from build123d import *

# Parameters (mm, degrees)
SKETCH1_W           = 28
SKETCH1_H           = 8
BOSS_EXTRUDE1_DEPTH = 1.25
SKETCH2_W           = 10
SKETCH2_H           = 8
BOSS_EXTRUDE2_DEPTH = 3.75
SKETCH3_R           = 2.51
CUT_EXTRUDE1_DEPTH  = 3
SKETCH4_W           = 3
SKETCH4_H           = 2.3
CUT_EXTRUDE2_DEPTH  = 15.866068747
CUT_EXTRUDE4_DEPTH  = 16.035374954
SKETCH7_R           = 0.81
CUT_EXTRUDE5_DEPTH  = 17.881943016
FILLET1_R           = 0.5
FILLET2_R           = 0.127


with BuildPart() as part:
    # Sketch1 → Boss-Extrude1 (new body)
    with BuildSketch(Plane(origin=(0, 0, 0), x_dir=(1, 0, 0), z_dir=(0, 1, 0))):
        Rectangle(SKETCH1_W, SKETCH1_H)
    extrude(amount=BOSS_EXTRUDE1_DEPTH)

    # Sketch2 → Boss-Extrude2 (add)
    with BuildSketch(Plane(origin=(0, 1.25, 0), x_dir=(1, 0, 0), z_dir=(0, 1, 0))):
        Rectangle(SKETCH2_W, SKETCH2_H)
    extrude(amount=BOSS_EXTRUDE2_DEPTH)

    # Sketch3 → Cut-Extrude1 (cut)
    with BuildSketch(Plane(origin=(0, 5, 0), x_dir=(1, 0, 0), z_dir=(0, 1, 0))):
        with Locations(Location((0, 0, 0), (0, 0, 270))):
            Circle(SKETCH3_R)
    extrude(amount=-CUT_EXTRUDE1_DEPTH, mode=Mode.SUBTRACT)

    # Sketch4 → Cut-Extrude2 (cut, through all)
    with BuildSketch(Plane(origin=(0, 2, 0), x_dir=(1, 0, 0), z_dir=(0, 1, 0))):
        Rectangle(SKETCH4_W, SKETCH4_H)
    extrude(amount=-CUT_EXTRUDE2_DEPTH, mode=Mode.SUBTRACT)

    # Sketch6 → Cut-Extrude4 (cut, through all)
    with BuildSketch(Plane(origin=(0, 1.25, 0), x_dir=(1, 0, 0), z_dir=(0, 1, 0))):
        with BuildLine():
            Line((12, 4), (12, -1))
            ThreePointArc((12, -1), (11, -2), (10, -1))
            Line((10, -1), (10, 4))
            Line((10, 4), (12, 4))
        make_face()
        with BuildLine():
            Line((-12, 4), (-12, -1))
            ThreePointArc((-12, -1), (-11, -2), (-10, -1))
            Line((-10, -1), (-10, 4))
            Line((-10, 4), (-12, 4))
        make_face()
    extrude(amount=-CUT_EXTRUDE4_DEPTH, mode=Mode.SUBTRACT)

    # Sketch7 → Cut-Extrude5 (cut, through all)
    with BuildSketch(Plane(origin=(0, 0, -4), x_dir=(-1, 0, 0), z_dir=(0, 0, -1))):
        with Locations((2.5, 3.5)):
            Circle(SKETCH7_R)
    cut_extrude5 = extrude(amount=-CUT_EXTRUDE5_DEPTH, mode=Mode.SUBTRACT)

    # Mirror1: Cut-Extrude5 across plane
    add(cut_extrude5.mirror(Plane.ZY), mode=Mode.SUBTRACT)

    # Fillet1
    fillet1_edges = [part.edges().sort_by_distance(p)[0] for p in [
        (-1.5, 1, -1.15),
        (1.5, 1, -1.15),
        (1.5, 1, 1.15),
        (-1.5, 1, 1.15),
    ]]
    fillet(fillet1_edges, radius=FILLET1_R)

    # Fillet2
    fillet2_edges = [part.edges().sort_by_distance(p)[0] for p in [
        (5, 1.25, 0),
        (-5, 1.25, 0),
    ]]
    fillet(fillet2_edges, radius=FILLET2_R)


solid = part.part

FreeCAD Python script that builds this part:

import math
import FreeCAD as App
import Part
import Sketcher
Q = App.Units.Quantity


def edges_at(feature, points):
    """Names of the edges that pass closest to the given points."""
    edges = feature.Shape.Edges
    near = lambda p: min(range(len(edges)), key=lambda i: edges[i].distToShape(Part.Vertex(*p))[0])
    return sorted({f"Edge{near(p) + 1}" for p in points})

doc = App.newDocument("Part")
params = doc.addObject("Spreadsheet::Sheet", "Params")
for row, (alias, value) in enumerate([
    ("sketch1_width", "28 mm"),
    ("sketch1_height", "8 mm"),
    ("pad1_length", "1.25 mm"),
    ("sketch2_width", "10 mm"),
    ("sketch2_height", "8 mm"),
    ("pad2_length", "3.75 mm"),
    ("sketch3_diameter", "5.02 mm"),
    ("pocket1_length", "3 mm"),
    ("sketch4_width", "3 mm"),
    ("sketch4_height", "2.3 mm"),
    ("sketch5_radius", "1 mm"),
    ("sketch5_height", "5 mm"),
    ("sketch6_diameter", "1.62 mm"),
    ("fillet_radius", "0.5 mm"),
    ("fillet2_radius", "0.127 mm"),
], start=1):
    params.set(f"A{row}", alias)
    params.set(f"B{row}", "=" + value)
    params.setAlias(f"B{row}", alias)

body = doc.addObject("PartDesign::Body", "Body")

# Sketch on XZ plane
sketch1 = body.newObject("Sketcher::SketchObject", "Sketch")
sketch1.AttachmentSupport = (doc.getObject("XZ_Plane"), [""])
sketch1.MapMode = "FlatFace"
sketch1.addGeometry([
    Part.LineSegment(App.Vector(-14, -4, 0), App.Vector(-14, 4, 0)),
    Part.LineSegment(App.Vector(-14, 4, 0), App.Vector(14, 4, 0)),
    Part.LineSegment(App.Vector(14, 4, 0), App.Vector(14, -4, 0)),
    Part.LineSegment(App.Vector(14, -4, 0), App.Vector(-14, -4, 0)),
], False)
sketch1.addConstraint([
    Sketcher.Constraint("Coincident", 0, 2, 1, 1),
    Sketcher.Constraint("Coincident", 1, 2, 2, 1),
    Sketcher.Constraint("Coincident", 2, 2, 3, 1),
    Sketcher.Constraint("Coincident", 3, 2, 0, 1),
    Sketcher.Constraint("Vertical", 0),
    Sketcher.Constraint("Horizontal", 1),
    Sketcher.Constraint("Vertical", 2),
    Sketcher.Constraint("Horizontal", 3),
    Sketcher.Constraint("Symmetric", 0, 2, 2, 2, -1, 1),
    Sketcher.Constraint("DistanceX", 1, 1, 1, 2, Q("28 mm")),
    Sketcher.Constraint("DistanceY", 0, 1, 0, 2, Q("8 mm")),
])
sketch1.setExpression("Constraints[9]", "Params.sketch1_width")
sketch1.setExpression("Constraints[10]", "Params.sketch1_height")
pad1 = body.newObject("PartDesign::Pad", "Pad")
pad1.Profile = sketch1
pad1.setExpression("Length", "Params.pad1_length")
pad1.Reversed = True

# Sketch on XZ plane
sketch2 = body.newObject("Sketcher::SketchObject", "Sketch001")
sketch2.AttachmentSupport = (doc.getObject("XZ_Plane"), [""])
sketch2.MapMode = "FlatFace"
sketch2.AttachmentOffset = App.Placement(App.Vector(0, 0, -1.25), App.Rotation())
sketch2.addGeometry([
    Part.LineSegment(App.Vector(-5, -4, 0), App.Vector(-5, 4, 0)),
    Part.LineSegment(App.Vector(-5, 4, 0), App.Vector(5, 4, 0)),
    Part.LineSegment(App.Vector(5, 4, 0), App.Vector(5, -4, 0)),
    Part.LineSegment(App.Vector(5, -4, 0), App.Vector(-5, -4, 0)),
], False)
sketch2.addConstraint([
    Sketcher.Constraint("Coincident", 0, 2, 1, 1),
    Sketcher.Constraint("Coincident", 1, 2, 2, 1),
    Sketcher.Constraint("Coincident", 2, 2, 3, 1),
    Sketcher.Constraint("Coincident", 3, 2, 0, 1),
    Sketcher.Constraint("Vertical", 0),
    Sketcher.Constraint("Horizontal", 1),
    Sketcher.Constraint("Vertical", 2),
    Sketcher.Constraint("Horizontal", 3),
    Sketcher.Constraint("Symmetric", 0, 2, 2, 2, -1, 1),
    Sketcher.Constraint("DistanceX", 1, 1, 1, 2, Q("10 mm")),
    Sketcher.Constraint("DistanceY", 0, 1, 0, 2, Q("8 mm")),
])
sketch2.setExpression("Constraints[9]", "Params.sketch2_width")
sketch2.setExpression("Constraints[10]", "Params.sketch2_height")
pad2 = body.newObject("PartDesign::Pad", "Pad001")
pad2.Profile = sketch2
pad2.setExpression("Length", "Params.pad2_length")
pad2.Reversed = True

# Sketch on XZ plane
sketch3 = body.newObject("Sketcher::SketchObject", "Sketch002")
sketch3.AttachmentSupport = (doc.getObject("XZ_Plane"), [""])
sketch3.MapMode = "FlatFace"
sketch3.AttachmentOffset = App.Placement(App.Vector(0, 0, -5), App.Rotation())
sketch3.addGeometry(Part.Circle(App.Vector(0, 0, 0), App.Vector(0, 0, 1), 2.51), False)
sketch3.addConstraint([
    Sketcher.Constraint("Coincident", 0, 3, -1, 1),
    Sketcher.Constraint("Diameter", 0, Q("5.02 mm")),
])
sketch3.setExpression("Constraints[1]", "Params.sketch3_diameter")
pocket1 = body.newObject("PartDesign::Pocket", "Pocket")
pocket1.Profile = sketch3
pocket1.setExpression("Length", "Params.pocket1_length")
pocket1.Reversed = True

# Sketch on XZ plane
sketch4 = body.newObject("Sketcher::SketchObject", "Sketch003")
sketch4.AttachmentSupport = (doc.getObject("XZ_Plane"), [""])
sketch4.MapMode = "FlatFace"
sketch4.AttachmentOffset = App.Placement(App.Vector(0, 0, -2), App.Rotation())
sketch4.addGeometry([
    Part.LineSegment(App.Vector(-1.5, -1.15, 0), App.Vector(-1.5, 1.15, 0)),
    Part.LineSegment(App.Vector(-1.5, 1.15, 0), App.Vector(1.5, 1.15, 0)),
    Part.LineSegment(App.Vector(1.5, 1.15, 0), App.Vector(1.5, -1.15, 0)),
    Part.LineSegment(App.Vector(1.5, -1.15, 0), App.Vector(-1.5, -1.15, 0)),
], False)
sketch4.addConstraint([
    Sketcher.Constraint("Coincident", 0, 2, 1, 1),
    Sketcher.Constraint("Coincident", 1, 2, 2, 1),
    Sketcher.Constraint("Coincident", 2, 2, 3, 1),
    Sketcher.Constraint("Coincident", 3, 2, 0, 1),
    Sketcher.Constraint("Vertical", 0),
    Sketcher.Constraint("Horizontal", 1),
    Sketcher.Constraint("Vertical", 2),
    Sketcher.Constraint("Horizontal", 3),
    Sketcher.Constraint("Symmetric", 0, 2, 2, 2, -1, 1),
    Sketcher.Constraint("DistanceX", 1, 1, 1, 2, Q("3 mm")),
    Sketcher.Constraint("DistanceY", 0, 1, 0, 2, Q("2.3 mm")),
])
sketch4.setExpression("Constraints[9]", "Params.sketch4_width")
sketch4.setExpression("Constraints[10]", "Params.sketch4_height")
pocket2 = body.newObject("PartDesign::Pocket", "Pocket001")
pocket2.Profile = sketch4
pocket2.Type = "ThroughAll"
pocket2.Reversed = True

# Sketch on XZ plane
sketch5 = body.newObject("Sketcher::SketchObject", "Sketch004")
sketch5.AttachmentSupport = (doc.getObject("XZ_Plane"), [""])
sketch5.MapMode = "FlatFace"
sketch5.AttachmentOffset = App.Placement(App.Vector(0, 0, -1.25), App.Rotation())
sketch5.addGeometry([
    Part.LineSegment(App.Vector(12, 1, 0), App.Vector(12, -4, 0)),  # 0
    Part.LineSegment(App.Vector(12, -4, 0), App.Vector(10, -4, 0)),  # 1
    Part.LineSegment(App.Vector(10, -4, 0), App.Vector(10, 1, 0)),  # 2
    Part.ArcOfCircle(Part.Circle(App.Vector(11, 1, 0), App.Vector(0, 0, 1), 1), math.radians(0), math.radians(180)),  # 3
    Part.LineSegment(App.Vector(-12, -4, 0), App.Vector(-12, 1, 0)),  # 4
    Part.ArcOfCircle(Part.Circle(App.Vector(-11, 1, 0), App.Vector(0, 0, 1), 1), math.radians(0), math.radians(180)),  # 5
    Part.LineSegment(App.Vector(-10, 1, 0), App.Vector(-10, -4, 0)),  # 6
    Part.LineSegment(App.Vector(-10, -4, 0), App.Vector(-12, -4, 0)),  # 7
], False)
sketch5.addConstraint([
    Sketcher.Constraint("Coincident", 0, 2, 1, 1),
    Sketcher.Constraint("Coincident", 1, 2, 2, 1),
    Sketcher.Constraint("Tangent", 2, 2, 3, 2),
    Sketcher.Constraint("Tangent", 3, 1, 0, 1),
    Sketcher.Constraint("Tangent", 4, 2, 5, 2),
    Sketcher.Constraint("Tangent", 5, 1, 6, 1),
    Sketcher.Constraint("Coincident", 6, 2, 7, 1),
    Sketcher.Constraint("Coincident", 7, 2, 4, 1),
    Sketcher.Constraint("Vertical", 0),
    Sketcher.Constraint("Horizontal", 1),
    Sketcher.Constraint("Vertical", 2),
    Sketcher.Constraint("Vertical", 4),
    Sketcher.Constraint("Vertical", 6),
    Sketcher.Constraint("Horizontal", 7),
    Sketcher.Constraint("Equal", 3, 5),
    Sketcher.Constraint("Symmetric", 3, 3, 5, 3, -2),
    Sketcher.Constraint("Horizontal", 1, 2, 6, 2),
    Sketcher.Constraint("Radius", 3, Q("1 mm")),
    Sketcher.Constraint("DistanceY", 0, 2, 0, 1, Q("5 mm")),
    Sketcher.Constraint("DistanceX", -1, 1, 3, 3, Q("11 mm")),
    Sketcher.Constraint("DistanceY", -1, 1, 3, 3, Q("1 mm")),
])
sketch5.setExpression("Constraints[17]", "Params.sketch5_radius")
sketch5.setExpression("Constraints[18]", "Params.sketch5_height")
pocket3 = body.newObject("PartDesign::Pocket", "Pocket002")
pocket3.Profile = sketch5
pocket3.Type = "ThroughAll"
pocket3.Reversed = True

# Sketch on XY plane
sketch6 = body.newObject("Sketcher::SketchObject", "Sketch005")
sketch6.AttachmentSupport = (doc.getObject("XY_Plane"), [""])
sketch6.MapMode = "FlatFace"
sketch6.AttachmentOffset = App.Placement(App.Vector(0, 0, -4), App.Rotation())
sketch6.addGeometry(Part.Circle(App.Vector(-2.5, 3.5, 0), App.Vector(0, 0, 1), 0.81), False)
sketch6.addConstraint([
    Sketcher.Constraint("Diameter", 0, Q("1.62 mm")),
    Sketcher.Constraint("DistanceX", 0, 3, -1, 1, Q("2.5 mm")),
    Sketcher.Constraint("DistanceY", -1, 1, 0, 3, Q("3.5 mm")),
])
sketch6.setExpression("Constraints[0]", "Params.sketch6_diameter")
pocket4 = body.newObject("PartDesign::Pocket", "Pocket003")
pocket4.Profile = sketch6
pocket4.Type = "ThroughAll"
pocket4.Reversed = True
doc.recompute()

mirrored = body.newObject("PartDesign::Mirrored", "Mirrored")
mirrored.Originals = [pocket4]
mirrored.MirrorPlane = (doc.getObject("YZ_Plane"), [""])
body.Tip = mirrored
doc.recompute()

fillet = body.newObject("PartDesign::Fillet", "Fillet")
fillet.Base = (mirrored, edges_at(mirrored, [
    (-1.5, 1, -1.15),
    (1.5, 1, -1.15),
    (1.5, 1, 1.15),
    (-1.5, 1, 1.15),
]))
fillet.setExpression("Radius", "Params.fillet_radius")
doc.recompute()

fillet2 = body.newObject("PartDesign::Fillet", "Fillet001")
fillet2.Base = (fillet, edges_at(fillet, [(5, 1.25, 0), (-5, 1.25, 0)]))
fillet2.setExpression("Radius", "Params.fillet2_radius")

doc.recompute()
